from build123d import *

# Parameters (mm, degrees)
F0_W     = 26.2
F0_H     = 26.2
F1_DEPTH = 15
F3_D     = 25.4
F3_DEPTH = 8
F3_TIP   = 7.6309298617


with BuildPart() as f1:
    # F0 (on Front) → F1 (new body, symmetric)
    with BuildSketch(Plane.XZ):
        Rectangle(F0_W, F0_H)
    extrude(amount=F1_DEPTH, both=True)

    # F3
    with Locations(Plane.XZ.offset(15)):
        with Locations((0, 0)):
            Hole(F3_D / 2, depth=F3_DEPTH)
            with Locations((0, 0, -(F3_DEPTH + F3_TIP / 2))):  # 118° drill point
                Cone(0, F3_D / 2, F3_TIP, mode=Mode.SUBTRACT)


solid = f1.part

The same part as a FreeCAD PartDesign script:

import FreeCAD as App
import Part
import Sketcher

doc = App.newDocument("Part")
body = doc.addObject("PartDesign::Body", "Body")

# Sketch on XZ plane
sketch1 = body.newObject("Sketcher::SketchObject", "Sketch")
sketch1.AttachmentSupport = (doc.getObject("XZ_Plane"), [""])
sketch1.MapMode = "FlatFace"
sketch1.addGeometry(Part.LineSegment(App.Vector(-13.1, 13.1, 0), App.Vector(-13.1, -13.1, 0)), False)
sketch1.addGeometry(Part.LineSegment(App.Vector(-13.1, -13.1, 0), App.Vector(13.1, -13.1, 0)), False)
sketch1.addGeometry(Part.LineSegment(App.Vector(13.1, -13.1, 0), App.Vector(13.1, 13.1, 0)), False)
sketch1.addGeometry(Part.LineSegment(App.Vector(13.1, 13.1, 0), App.Vector(-13.1, 13.1, 0)), False)
sketch1.addConstraint(Sketcher.Constraint("Coincident", 0, 2, 1, 1))
sketch1.addConstraint(Sketcher.Constraint("Coincident", 1, 2, 2, 1))
sketch1.addConstraint(Sketcher.Constraint("Coincident", 2, 2, 3, 1))
sketch1.addConstraint(Sketcher.Constraint("Coincident", 3, 2, 0, 1))
sketch1.addConstraint(Sketcher.Constraint("Vertical", 0))
sketch1.addConstraint(Sketcher.Constraint("Horizontal", 1))
sketch1.addConstraint(Sketcher.Constraint("Vertical", 2))
sketch1.addConstraint(Sketcher.Constraint("Horizontal", 3))
sketch1.addConstraint(Sketcher.Constraint("Symmetric", 0, 2, 2, 2, -1, 1))
sketch1.addConstraint(Sketcher.Constraint("Equal", 3, 0))
sketch1.addConstraint(Sketcher.Constraint("DistanceX", 1, 1, 1, 2, 26.2))
pad1 = body.newObject("PartDesign::Pad", "Pad")
pad1.Profile = sketch1
pad1.Length = 30
pad1.Midplane = True

# Sketch on XZ plane
sketch2 = body.newObject("Sketcher::SketchObject", "Sketch001")
sketch2.AttachmentSupport = (doc.getObject("XZ_Plane"), [""])
sketch2.MapMode = "FlatFace"
sketch2.AttachmentOffset = App.Placement(App.Vector(0, 0, 15), App.Rotation())
sketch2.addGeometry(Part.Circle(App.Vector(0, 0, 0), App.Vector(0, 0, 1), 12.7), False)
sketch2.addConstraint(Sketcher.Constraint("Coincident", 0, 3, -1, 1))
sketch2.addConstraint(Sketcher.Constraint("Diameter", 0, 25.4))
doc.recompute()
hole = body.newObject("PartDesign::Hole", "Hole")
hole.Profile = sketch2
hole.ThreadType = "None"
hole.Diameter = 25.4
hole.DepthType = "Dimension"
hole.Depth = 8
hole.DrillPoint = "Angled"
hole.DrillPointAngle = 118

doc.recompute()
